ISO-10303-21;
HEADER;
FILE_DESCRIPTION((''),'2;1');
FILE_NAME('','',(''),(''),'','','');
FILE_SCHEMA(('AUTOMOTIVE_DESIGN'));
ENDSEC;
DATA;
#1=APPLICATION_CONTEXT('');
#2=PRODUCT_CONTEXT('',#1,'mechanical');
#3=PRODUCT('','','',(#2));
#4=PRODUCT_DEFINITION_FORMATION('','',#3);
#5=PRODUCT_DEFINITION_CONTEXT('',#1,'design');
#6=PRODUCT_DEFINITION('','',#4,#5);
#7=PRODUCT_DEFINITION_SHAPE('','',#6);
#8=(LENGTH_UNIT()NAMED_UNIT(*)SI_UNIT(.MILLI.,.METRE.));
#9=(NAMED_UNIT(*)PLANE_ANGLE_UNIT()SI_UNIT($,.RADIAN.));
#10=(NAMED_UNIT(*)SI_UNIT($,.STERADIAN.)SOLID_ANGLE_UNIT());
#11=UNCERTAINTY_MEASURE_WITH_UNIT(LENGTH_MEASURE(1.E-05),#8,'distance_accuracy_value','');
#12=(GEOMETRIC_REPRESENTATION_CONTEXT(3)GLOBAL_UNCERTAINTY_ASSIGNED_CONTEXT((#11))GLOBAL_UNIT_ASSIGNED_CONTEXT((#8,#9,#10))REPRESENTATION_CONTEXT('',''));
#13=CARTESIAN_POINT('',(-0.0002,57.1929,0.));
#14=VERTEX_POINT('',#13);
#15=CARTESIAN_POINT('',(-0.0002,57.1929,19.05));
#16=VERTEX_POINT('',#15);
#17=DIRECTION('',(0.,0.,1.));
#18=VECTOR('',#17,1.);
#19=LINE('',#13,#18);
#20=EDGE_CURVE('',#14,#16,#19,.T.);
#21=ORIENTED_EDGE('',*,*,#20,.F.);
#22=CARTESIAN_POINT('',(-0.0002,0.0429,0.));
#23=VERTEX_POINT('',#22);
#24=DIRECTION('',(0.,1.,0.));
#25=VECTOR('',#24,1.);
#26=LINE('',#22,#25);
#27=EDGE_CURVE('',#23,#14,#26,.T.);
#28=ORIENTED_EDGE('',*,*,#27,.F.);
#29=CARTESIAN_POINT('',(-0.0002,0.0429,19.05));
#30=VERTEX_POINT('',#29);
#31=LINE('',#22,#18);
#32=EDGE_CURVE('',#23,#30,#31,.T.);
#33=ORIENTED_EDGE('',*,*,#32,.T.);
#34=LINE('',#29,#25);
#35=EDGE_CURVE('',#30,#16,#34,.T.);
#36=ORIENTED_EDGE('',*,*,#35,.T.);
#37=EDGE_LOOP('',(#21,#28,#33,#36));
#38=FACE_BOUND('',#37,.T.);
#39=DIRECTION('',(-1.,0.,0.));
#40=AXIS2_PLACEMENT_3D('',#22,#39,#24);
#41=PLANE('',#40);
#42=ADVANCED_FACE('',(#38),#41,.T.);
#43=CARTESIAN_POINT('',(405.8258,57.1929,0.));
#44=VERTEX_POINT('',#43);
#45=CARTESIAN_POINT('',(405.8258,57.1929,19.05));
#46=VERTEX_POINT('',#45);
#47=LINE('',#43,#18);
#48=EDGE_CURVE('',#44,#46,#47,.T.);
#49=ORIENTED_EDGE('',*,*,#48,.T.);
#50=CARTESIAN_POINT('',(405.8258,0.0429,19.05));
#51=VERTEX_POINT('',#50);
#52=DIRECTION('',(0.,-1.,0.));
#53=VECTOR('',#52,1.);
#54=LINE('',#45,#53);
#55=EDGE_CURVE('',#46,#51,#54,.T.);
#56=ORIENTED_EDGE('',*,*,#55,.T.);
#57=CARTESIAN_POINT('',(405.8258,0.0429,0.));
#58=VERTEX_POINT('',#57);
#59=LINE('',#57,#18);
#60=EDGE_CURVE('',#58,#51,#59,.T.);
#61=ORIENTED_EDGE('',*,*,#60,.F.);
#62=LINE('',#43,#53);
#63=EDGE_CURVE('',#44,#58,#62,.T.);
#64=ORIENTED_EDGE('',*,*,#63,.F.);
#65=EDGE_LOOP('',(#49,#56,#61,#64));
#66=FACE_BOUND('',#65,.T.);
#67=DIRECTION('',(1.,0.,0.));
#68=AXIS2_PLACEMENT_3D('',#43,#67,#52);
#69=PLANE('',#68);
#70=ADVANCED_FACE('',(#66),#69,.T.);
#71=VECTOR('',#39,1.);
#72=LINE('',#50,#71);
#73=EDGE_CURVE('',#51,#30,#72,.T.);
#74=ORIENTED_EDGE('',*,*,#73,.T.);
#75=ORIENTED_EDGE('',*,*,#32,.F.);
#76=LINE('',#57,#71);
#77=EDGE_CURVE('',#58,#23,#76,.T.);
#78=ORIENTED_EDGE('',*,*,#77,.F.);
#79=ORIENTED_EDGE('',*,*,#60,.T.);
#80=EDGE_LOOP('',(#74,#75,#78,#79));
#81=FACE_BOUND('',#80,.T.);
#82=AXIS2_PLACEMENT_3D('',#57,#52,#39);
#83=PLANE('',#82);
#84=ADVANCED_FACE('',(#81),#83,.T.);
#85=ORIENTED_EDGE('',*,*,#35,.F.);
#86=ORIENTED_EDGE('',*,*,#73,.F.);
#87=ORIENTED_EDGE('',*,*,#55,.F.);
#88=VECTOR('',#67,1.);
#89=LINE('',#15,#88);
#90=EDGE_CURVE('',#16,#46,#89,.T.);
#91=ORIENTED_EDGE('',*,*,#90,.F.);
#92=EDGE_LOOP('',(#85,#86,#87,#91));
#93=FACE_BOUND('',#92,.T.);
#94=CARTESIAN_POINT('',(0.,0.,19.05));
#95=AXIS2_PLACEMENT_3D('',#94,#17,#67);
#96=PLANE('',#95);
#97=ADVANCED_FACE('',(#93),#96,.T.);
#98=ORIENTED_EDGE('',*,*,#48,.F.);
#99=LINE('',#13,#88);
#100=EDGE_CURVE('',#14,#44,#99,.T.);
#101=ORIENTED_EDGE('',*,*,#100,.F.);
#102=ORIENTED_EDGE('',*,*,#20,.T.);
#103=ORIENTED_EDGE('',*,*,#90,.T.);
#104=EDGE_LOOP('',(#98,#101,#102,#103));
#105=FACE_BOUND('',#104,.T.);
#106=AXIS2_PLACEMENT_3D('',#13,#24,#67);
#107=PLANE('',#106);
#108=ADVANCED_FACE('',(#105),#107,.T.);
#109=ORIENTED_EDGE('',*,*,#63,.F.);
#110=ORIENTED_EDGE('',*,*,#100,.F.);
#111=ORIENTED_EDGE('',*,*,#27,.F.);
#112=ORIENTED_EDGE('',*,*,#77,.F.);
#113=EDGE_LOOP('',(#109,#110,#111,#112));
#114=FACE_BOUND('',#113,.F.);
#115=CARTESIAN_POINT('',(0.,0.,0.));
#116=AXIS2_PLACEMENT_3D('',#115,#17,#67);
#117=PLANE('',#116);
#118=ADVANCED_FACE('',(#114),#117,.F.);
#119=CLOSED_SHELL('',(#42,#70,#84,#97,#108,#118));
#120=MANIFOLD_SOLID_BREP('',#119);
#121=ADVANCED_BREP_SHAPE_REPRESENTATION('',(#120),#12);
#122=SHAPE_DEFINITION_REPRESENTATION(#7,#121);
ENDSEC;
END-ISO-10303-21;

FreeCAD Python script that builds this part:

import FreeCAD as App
import Part
import Sketcher
Q = App.Units.Quantity


def add_polygon(sketch, points):
    """Adds a closed chain of lines whose ends are joined by coincident constraints."""
    first, n = sketch.GeometryCount, len(points)
    for a, b in zip(points, points[1:] + points[:1]):
        sketch.addGeometry(Part.LineSegment(App.Vector(*a, 0), App.Vector(*b, 0)), False)
    for i in range(n):
        sketch.addConstraint(Sketcher.Constraint("Coincident", first + i, 2, first + (i + 1) % n, 1))

doc = App.newDocument("Part")
params = doc.addObject("Spreadsheet::Sheet", "Params")
for row, (alias, value) in enumerate([
    ("sketch1_height", "2.25 in"),
    ("pad1_length", "0.75 in"),
], start=1):
    params.set(f"A{row}", alias)
    params.set(f"B{row}", "=" + value)
    params.setAlias(f"B{row}", alias)

body = doc.addObject("PartDesign::Body", "Body")

# Sketch on XY plane
sketch1 = body.newObject("Sketcher::SketchObject", "Sketch")
sketch1.AttachmentSupport = (doc.getObject("XY_Plane"), [""])
sketch1.MapMode = "FlatFace"
add_polygon(sketch1, [(-0.0002, 57.1929), (-0.0002, 0.0429), (405.8258, 0.0429), (405.8258, 57.1929)])  # lines 0-3
sketch1.addConstraint(Sketcher.Constraint("Vertical", 0))
sketch1.addConstraint(Sketcher.Constraint("Horizontal", 1))
sketch1.addConstraint(Sketcher.Constraint("Vertical", 2))
sketch1.addConstraint(Sketcher.Constraint("Horizontal", 3))
sketch1.addConstraint(Sketcher.Constraint("DistanceX", 0, 2, -1, 1, Q("0 in")))
sketch1.addConstraint(Sketcher.Constraint("DistanceY", 0, 2, 0, 1, Q("2.25 in")))
sketch1.addConstraint(Sketcher.Constraint("DistanceX", 1, 1, 1, 2, Q("15.9774 in")))
sketch1.addConstraint(Sketcher.Constraint("DistanceY", -1, 1, 0, 2, Q("0.0017 in")))
sketch1.setExpression("Constraints[9]", "Params.sketch1_height")
pad1 = body.newObject("PartDesign::Pad", "Pad")
pad1.Profile = sketch1
pad1.setExpression("Length", "Params.pad1_length")

doc.recompute()
